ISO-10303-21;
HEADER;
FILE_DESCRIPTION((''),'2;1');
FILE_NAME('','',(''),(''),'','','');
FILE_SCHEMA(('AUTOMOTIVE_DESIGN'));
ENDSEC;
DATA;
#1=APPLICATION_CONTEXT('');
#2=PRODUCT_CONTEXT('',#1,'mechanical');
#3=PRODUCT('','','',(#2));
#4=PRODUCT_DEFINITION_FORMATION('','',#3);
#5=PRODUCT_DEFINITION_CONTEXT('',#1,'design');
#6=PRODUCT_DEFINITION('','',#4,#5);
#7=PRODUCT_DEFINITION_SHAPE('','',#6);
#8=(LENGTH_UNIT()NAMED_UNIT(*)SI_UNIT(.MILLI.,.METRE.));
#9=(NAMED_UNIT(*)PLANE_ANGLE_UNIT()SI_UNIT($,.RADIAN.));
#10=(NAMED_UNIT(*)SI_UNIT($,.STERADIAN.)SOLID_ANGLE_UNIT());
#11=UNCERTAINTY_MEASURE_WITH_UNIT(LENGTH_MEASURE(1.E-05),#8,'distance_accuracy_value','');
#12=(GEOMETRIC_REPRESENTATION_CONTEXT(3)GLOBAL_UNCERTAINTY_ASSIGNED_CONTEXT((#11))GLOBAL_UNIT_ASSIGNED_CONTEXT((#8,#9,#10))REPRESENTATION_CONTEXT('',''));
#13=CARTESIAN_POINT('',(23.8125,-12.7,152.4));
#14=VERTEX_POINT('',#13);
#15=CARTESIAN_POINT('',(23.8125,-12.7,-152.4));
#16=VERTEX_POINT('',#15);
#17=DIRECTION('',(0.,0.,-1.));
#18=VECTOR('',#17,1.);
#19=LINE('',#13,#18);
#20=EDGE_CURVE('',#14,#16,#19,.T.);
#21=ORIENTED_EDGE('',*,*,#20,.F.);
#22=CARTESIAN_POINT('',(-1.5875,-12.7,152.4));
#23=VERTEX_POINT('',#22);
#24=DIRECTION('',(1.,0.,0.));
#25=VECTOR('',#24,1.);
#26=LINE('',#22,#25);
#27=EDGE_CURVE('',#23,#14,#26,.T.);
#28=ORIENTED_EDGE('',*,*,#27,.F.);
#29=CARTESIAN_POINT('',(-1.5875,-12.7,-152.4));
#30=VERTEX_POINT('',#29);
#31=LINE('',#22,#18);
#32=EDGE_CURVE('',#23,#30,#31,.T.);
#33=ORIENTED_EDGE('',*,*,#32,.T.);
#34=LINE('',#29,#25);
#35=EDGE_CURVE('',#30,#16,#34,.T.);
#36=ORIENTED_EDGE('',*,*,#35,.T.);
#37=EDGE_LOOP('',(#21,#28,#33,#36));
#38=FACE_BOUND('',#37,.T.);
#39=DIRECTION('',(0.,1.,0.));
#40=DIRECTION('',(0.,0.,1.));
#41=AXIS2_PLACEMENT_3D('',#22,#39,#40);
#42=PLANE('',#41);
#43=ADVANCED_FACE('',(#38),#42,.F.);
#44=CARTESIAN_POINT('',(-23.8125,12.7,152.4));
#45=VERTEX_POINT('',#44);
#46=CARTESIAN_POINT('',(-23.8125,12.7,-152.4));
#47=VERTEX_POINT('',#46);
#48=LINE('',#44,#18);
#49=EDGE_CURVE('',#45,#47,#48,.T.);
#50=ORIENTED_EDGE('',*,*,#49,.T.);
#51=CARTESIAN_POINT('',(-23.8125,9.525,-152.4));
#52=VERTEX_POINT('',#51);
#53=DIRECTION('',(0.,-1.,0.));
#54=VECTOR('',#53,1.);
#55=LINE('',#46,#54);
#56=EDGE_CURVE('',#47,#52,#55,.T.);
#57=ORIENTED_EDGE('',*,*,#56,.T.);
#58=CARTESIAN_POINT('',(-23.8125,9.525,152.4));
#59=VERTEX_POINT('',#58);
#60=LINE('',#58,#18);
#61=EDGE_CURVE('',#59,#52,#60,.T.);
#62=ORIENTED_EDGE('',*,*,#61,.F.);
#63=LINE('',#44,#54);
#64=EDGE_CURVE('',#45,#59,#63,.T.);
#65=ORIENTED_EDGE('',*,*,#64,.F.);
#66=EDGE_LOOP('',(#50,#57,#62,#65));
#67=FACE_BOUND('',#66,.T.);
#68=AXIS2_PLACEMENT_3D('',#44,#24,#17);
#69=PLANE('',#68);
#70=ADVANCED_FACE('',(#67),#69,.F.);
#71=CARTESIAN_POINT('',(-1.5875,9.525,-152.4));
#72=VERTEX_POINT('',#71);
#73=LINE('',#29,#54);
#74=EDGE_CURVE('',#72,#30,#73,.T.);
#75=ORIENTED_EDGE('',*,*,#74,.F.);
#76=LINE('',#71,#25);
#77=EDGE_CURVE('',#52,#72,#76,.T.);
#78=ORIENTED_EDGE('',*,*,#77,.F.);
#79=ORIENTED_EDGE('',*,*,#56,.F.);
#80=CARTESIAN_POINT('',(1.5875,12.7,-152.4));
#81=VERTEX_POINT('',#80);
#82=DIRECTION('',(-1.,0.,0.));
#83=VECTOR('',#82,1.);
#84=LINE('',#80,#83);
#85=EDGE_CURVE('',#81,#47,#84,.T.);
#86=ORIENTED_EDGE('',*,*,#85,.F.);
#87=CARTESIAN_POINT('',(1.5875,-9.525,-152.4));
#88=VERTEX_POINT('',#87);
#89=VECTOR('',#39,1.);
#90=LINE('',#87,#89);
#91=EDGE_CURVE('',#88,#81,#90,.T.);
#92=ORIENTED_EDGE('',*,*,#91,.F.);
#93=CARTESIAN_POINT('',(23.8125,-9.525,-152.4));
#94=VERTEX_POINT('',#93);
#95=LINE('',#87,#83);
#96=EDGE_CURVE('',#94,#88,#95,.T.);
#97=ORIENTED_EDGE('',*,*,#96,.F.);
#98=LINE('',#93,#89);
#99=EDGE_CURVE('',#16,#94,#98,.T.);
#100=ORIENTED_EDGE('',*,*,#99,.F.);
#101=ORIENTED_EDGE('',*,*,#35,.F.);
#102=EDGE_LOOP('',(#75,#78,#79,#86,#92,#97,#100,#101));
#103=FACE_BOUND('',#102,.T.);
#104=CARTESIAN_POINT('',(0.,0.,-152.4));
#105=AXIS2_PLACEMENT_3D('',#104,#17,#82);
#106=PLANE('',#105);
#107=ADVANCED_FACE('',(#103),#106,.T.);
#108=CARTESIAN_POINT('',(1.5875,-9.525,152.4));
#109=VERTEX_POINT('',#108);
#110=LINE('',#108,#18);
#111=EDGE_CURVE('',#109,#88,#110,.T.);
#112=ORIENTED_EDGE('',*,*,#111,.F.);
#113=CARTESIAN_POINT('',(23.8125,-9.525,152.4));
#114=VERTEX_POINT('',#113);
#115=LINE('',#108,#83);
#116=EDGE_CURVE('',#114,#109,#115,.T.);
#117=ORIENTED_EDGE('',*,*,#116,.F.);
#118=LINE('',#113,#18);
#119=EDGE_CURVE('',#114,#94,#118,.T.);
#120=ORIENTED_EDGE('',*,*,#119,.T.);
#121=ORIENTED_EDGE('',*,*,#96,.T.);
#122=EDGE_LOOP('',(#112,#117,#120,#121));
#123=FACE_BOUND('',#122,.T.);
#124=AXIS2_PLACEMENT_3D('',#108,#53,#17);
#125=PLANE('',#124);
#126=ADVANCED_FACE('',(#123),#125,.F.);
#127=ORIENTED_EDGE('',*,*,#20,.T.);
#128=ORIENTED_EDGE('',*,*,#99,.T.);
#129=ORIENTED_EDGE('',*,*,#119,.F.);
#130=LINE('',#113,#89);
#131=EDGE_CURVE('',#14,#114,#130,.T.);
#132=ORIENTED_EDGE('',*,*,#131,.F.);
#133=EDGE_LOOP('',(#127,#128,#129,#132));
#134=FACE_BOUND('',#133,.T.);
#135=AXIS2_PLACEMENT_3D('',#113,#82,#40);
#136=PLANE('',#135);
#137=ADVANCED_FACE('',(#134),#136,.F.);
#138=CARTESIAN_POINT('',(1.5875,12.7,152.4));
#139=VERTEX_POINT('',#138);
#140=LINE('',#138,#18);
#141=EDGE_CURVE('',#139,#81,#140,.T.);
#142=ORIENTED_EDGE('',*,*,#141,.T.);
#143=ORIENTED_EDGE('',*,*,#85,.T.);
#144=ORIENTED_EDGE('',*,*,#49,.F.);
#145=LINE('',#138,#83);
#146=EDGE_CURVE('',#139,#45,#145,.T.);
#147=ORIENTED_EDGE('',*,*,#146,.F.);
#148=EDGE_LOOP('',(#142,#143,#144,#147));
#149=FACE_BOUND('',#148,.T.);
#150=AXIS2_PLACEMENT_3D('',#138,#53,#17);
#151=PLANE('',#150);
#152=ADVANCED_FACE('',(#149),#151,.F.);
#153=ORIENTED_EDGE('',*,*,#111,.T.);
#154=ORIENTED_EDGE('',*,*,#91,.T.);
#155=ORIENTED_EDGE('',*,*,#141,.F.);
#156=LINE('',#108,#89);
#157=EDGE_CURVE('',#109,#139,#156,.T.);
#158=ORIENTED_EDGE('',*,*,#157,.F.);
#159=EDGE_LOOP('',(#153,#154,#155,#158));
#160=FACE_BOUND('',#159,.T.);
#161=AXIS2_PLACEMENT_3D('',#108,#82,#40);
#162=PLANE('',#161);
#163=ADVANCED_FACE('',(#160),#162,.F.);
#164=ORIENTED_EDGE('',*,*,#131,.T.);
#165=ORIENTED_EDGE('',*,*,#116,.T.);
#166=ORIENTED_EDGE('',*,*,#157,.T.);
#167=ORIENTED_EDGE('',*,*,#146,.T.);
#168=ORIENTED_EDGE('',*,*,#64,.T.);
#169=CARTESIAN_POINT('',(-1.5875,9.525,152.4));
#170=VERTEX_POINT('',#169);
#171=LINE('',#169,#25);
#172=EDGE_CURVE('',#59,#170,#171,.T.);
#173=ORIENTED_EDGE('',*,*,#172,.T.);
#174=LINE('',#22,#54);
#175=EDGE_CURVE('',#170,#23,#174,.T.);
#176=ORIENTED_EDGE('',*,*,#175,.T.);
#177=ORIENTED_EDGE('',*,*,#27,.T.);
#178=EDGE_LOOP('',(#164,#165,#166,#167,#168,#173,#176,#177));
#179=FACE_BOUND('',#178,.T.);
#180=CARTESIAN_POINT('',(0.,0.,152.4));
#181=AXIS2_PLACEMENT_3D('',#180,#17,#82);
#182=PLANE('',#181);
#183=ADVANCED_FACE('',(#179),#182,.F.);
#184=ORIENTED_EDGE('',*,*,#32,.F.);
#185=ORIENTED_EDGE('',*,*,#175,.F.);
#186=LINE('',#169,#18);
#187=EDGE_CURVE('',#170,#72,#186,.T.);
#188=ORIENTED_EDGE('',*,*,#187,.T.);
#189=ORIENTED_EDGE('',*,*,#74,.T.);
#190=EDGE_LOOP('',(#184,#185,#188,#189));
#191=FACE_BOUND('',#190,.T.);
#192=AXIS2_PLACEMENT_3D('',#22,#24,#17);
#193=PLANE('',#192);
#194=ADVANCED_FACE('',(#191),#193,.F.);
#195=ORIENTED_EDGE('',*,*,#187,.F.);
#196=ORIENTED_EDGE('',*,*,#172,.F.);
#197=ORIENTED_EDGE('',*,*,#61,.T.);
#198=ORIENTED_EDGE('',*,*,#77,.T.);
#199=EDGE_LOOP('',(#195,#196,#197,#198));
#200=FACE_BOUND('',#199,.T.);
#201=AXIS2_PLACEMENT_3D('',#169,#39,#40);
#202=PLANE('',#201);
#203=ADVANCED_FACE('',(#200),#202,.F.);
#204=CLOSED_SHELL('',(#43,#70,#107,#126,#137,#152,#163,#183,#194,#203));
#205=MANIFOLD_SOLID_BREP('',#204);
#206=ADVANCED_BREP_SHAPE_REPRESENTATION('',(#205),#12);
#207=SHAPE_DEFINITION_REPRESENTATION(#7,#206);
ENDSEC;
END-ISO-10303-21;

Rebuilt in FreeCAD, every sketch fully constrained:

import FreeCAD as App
import Part
import Sketcher

V = App.Vector
Q = App.Units.Quantity

doc = App.newDocument("Part")
body = doc.addObject("PartDesign::Body", "Body")

# Sketch on XY plane
sketch1 = doc.addObject("Sketcher::SketchObject", "Sketch")
body.addObject(sketch1)
sketch1.AttachmentSupport = (doc.XY_Plane, [""])
sketch1.MapMode = "FlatFace"
sketch1.addGeometry([
    Part.LineSegment(V(23.8125, -12.7, 0), V(23.8125, -9.525, 0)),  # 0
    Part.LineSegment(V(23.8125, -9.525, 0), V(1.5875, -9.525, 0)),  # 1
    Part.LineSegment(V(1.5875, -9.525, 0), V(1.5875, 12.7, 0)),  # 2
    Part.LineSegment(V(1.5875, 12.7, 0), V(-23.8125, 12.7, 0)),  # 3
    Part.LineSegment(V(-23.8125, 12.7, 0), V(-23.8125, 9.525, 0)),  # 4
    Part.LineSegment(V(-23.8125, 9.525, 0), V(-1.5875, 9.525, 0)),  # 5
    Part.LineSegment(V(-1.5875, 9.525, 0), V(-1.5875, -12.7, 0)),  # 6
    Part.LineSegment(V(-1.5875, -12.7, 0), V(23.8125, -12.7, 0)),  # 7
], False)
sketch1.addConstraint([
    Sketcher.Constraint("Coincident", 0, 2, 1, 1),
    Sketcher.Constraint("Coincident", 1, 2, 2, 1),
    Sketcher.Constraint("Coincident", 2, 2, 3, 1),
    Sketcher.Constraint("Coincident", 3, 2, 4, 1),
    Sketcher.Constraint("Coincident", 4, 2, 5, 1),
    Sketcher.Constraint("Coincident", 5, 2, 6, 1),
    Sketcher.Constraint("Coincident", 6, 2, 7, 1),
    Sketcher.Constraint("Coincident", 7, 2, 0, 1),
    Sketcher.Constraint("Vertical", 0),
    Sketcher.Constraint("Horizontal", 1),
    Sketcher.Constraint("Vertical", 2),
    Sketcher.Constraint("Horizontal", 3),
    Sketcher.Constraint("Vertical", 4),
    Sketcher.Constraint("Horizontal", 5),
    Sketcher.Constraint("Vertical", 6),
    Sketcher.Constraint("Horizontal", 7),
    Sketcher.Constraint("Symmetric", 0, 2, 4, 2, -1, 1),
    Sketcher.Constraint("Symmetric", 2, 2, 6, 2, -1, 1),
    Sketcher.Constraint("Equal", 5, 2),
    Sketcher.Constraint("DistanceX", 3, 2, 3, 1, Q("1 in")),
    Sketcher.Constraint("DistanceY", 6, 2, 2, 2, Q("1 in")),
    Sketcher.Constraint("DistanceX", 1, 2, 1, 1, Q("0.875 in")),
])
pad1 = doc.addObject("PartDesign::Pad", "Pad")
body.addObject(pad1)
pad1.Profile = sketch1
pad1.Type = "TwoLengths"
pad1.Length = Q("6 in")
pad1.Length2 = Q("6 in")

doc.recompute()
